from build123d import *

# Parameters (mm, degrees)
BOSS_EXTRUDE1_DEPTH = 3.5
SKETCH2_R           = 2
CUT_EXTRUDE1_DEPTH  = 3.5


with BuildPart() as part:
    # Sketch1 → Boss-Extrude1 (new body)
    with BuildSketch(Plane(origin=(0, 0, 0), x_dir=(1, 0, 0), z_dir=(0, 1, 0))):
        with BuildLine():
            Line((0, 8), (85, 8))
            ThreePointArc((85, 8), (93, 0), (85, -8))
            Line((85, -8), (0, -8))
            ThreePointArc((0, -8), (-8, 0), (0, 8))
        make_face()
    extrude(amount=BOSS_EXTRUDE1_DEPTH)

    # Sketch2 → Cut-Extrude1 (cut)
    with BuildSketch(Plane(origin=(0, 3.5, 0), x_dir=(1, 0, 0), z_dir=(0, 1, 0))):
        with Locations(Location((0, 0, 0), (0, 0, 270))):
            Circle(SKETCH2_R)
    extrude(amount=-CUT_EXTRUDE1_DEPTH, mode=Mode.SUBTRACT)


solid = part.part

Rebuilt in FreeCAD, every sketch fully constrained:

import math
import FreeCAD as App
import Part
import Sketcher
Q = App.Units.Quantity

doc = App.newDocument("Part")
body = doc.addObject("PartDesign::Body", "Body")

sketch1 = doc.addObject("Sketcher::SketchObject", "Sketch")
body.addObject(sketch1)
sketch1.AttachmentSupport = (doc.XZ_Plane, [""])
sketch1.MapMode = "FlatFace"
sketch1.addGeometry([
    Part.LineSegment(App.Vector(85, -8, 0), App.Vector(0, -8, 0)),
    Part.ArcOfCircle(Part.Circle(App.Vector(0, 0, 0), App.Vector(0, 0, 1), 8), math.radians(90), math.radians(270)),
    Part.LineSegment(App.Vector(0, 8, 0), App.Vector(85, 8, 0)),
    Part.ArcOfCircle(Part.Circle(App.Vector(85, 0, 0), App.Vector(0, 0, 1), 8), math.radians(-90), math.radians(90)),
], False)
sketch1.addConstraint([
    Sketcher.Constraint("Tangent", 0, 2, 1, 2),
    Sketcher.Constraint("Tangent", 1, 1, 2, 1),
    Sketcher.Constraint("Tangent", 2, 2, 3, 2),
    Sketcher.Constraint("Tangent", 3, 1, 0, 1),
    Sketcher.Constraint("Horizontal", 0),
    Sketcher.Constraint("Horizontal", 2),
    Sketcher.Constraint("Coincident", 1, 3, -1, 1),
    Sketcher.Constraint("Radius", 1, Q("8 mm")),
    Sketcher.Constraint("DistanceX", 0, 2, 0, 1, Q("85 mm")),
])
pad1 = doc.addObject("PartDesign::Pad", "Pad")
body.addObject(pad1)
pad1.Profile = sketch1
pad1.Length = 3.5
pad1.Reversed = True

sketch2 = doc.addObject("Sketcher::SketchObject", "Sketch001")
body.addObject(sketch2)
sketch2.AttachmentSupport = (doc.XZ_Plane, [""])
sketch2.MapMode = "FlatFace"
sketch2.AttachmentOffset = App.Placement(App.Vector(0, 0, -3.5), App.Rotation())
sketch2.addGeometry(Part.Circle(App.Vector(0, 0, 0), App.Vector(0, 0, 1), 2), False)
sketch2.addConstraint([
    Sketcher.Constraint("Coincident", 0, 3, -1, 1),
    Sketcher.Constraint("Diameter", 0, Q("4 mm")),
])
pocket1 = doc.addObject("PartDesign::Pocket", "Pocket")
body.addObject(pocket1)
pocket1.Profile = sketch2
pocket1.Length = 3.5
pocket1.Reversed = True

doc.recompute()
